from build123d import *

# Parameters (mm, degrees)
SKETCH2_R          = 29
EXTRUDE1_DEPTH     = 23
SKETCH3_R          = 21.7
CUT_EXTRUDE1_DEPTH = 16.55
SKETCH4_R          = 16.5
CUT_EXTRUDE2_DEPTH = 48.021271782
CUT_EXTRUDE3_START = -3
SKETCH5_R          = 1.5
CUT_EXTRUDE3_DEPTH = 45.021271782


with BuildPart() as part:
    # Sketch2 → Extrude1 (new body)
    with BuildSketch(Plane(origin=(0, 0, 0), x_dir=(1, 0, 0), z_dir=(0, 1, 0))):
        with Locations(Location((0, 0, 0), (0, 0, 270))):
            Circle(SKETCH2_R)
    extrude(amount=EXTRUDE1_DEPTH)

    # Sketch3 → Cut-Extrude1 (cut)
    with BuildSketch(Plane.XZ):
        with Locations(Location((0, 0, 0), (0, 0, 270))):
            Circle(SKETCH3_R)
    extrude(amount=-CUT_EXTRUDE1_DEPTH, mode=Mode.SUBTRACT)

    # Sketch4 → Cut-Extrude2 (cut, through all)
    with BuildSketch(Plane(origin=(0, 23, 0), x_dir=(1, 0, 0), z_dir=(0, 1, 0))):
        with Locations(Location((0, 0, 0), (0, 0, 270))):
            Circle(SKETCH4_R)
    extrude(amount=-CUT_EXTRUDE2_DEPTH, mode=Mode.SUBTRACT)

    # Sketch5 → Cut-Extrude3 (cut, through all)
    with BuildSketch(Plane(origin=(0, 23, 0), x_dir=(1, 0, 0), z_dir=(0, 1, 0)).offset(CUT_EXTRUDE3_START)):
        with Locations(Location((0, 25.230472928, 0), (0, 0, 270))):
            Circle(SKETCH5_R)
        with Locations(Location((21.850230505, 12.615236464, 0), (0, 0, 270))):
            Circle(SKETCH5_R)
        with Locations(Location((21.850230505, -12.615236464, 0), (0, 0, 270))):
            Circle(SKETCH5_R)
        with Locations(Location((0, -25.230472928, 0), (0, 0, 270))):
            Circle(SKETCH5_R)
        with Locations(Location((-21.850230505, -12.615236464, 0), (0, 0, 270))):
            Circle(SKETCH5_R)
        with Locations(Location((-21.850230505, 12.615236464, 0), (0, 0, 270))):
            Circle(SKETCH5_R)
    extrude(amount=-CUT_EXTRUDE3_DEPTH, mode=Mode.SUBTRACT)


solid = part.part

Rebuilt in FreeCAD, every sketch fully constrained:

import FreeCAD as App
import Part
import Sketcher

V = App.Vector
Q = App.Units.Quantity

doc = App.newDocument("Part")
body = doc.addObject("PartDesign::Body", "Body")

sketch1 = body.newObject("Sketcher::SketchObject", "Sketch")
sketch1.AttachmentSupport = (doc.getObject("XZ_Plane"), [""])
sketch1.MapMode = "FlatFace"
sketch1.addGeometry(Part.Circle(V(0, 0, 0), V(0, 0, 1), 29), False)
sketch1.addConstraint(Sketcher.Constraint("Coincident", 0, 3, -1, 1))
sketch1.addConstraint(Sketcher.Constraint("Diameter", 0, Q("58 mm")))
pad1 = body.newObject("PartDesign::Pad", "Pad")
pad1.Profile = sketch1
pad1.Length = 23
pad1.Reversed = True

sketch2 = body.newObject("Sketcher::SketchObject", "Sketch001")
sketch2.AttachmentSupport = (doc.getObject("XZ_Plane"), [""])
sketch2.MapMode = "FlatFace"
sketch2.addGeometry(Part.Circle(V(0, 0, 0), V(0, 0, 1), 22), False)
sketch2.addConstraint(Sketcher.Constraint("Coincident", 0, 3, -1, 1))
sketch2.addConstraint(Sketcher.Constraint("Diameter", 0, Q("43.4 mm")))
pocket1 = body.newObject("PartDesign::Pocket", "Pocket")
pocket1.Profile = sketch2
pocket1.Length = 16.55

sketch3 = body.newObject("Sketcher::SketchObject", "Sketch002")
sketch3.AttachmentSupport = (doc.getObject("XZ_Plane"), [""])
sketch3.MapMode = "FlatFace"
sketch3.AttachmentOffset = App.Placement(V(0, 0, -23), App.Rotation())
sketch3.addGeometry(Part.Circle(V(0, 0, 0), V(0, 0, 1), 16), False)
sketch3.addConstraint(Sketcher.Constraint("Coincident", 0, 3, -1, 1))
sketch3.addConstraint(Sketcher.Constraint("Diameter", 0, Q("33 mm")))
pocket2 = body.newObject("PartDesign::Pocket", "Pocket001")
pocket2.Profile = sketch3
pocket2.Type = "ThroughAll"
pocket2.Reversed = True

sketch4 = body.newObject("Sketcher::SketchObject", "Sketch003")
sketch4.AttachmentSupport = (doc.getObject("XZ_Plane"), [""])
sketch4.MapMode = "FlatFace"
sketch4.AttachmentOffset = App.Placement(V(0, 0, -20), App.Rotation())
sketch4.addGeometry(Part.Circle(V(0, -25.2, 0), V(0, 0, 1), 1.5), False)
sketch4.addGeometry(Part.Circle(V(21.9, -12.6, 0), V(0, 0, 1), 1.5), False)
sketch4.addGeometry(Part.Circle(V(21.9, 12.6, 0), V(0, 0, 1), 1.5), False)
sketch4.addGeometry(Part.Circle(V(0, 25.2, 0), V(0, 0, 1), 1.5), False)
sketch4.addGeometry(Part.Circle(V(-21.9, 12.6, 0), V(0, 0, 1), 1.5), False)
sketch4.addGeometry(Part.Circle(V(-21.9, -12.6, 0), V(0, 0, 1), 1.5), False)
sketch4.addConstraint(Sketcher.Constraint("Equal", 0, 1))
sketch4.addConstraint(Sketcher.Constraint("Equal", 1, 2))
sketch4.addConstraint(Sketcher.Constraint("Equal", 2, 3))
sketch4.addConstraint(Sketcher.Constraint("Equal", 3, 4))
sketch4.addConstraint(Sketcher.Constraint("Equal", 4, 5))
sketch4.addConstraint(Sketcher.Constraint("Symmetric", 0, 3, 3, 3, -1, 1))
sketch4.addConstraint(Sketcher.Constraint("Symmetric", 1, 3, 4, 3, -1, 1))
sketch4.addConstraint(Sketcher.Constraint("Symmetric", 2, 3, 5, 3, -1, 1))
sketch4.addConstraint(Sketcher.Constraint("Symmetric", 2, 3, 4, 3, -2))
sketch4.addConstraint(Sketcher.Constraint("PointOnObject", 0, 3, -2))
sketch4.addConstraint(Sketcher.Constraint("Diameter", 0, Q("3 mm")))
sketch4.addConstraint(Sketcher.Constraint("DistanceX", -1, 1, 1, 3, Q("21.850231 mm")))
sketch4.addConstraint(Sketcher.Constraint("DistanceY", 0, 3, 2, 3, Q("37.845709 mm")))
sketch4.addConstraint(Sketcher.Constraint("DistanceY", 0, 3, -1, 1, Q("25.230473 mm")))
pocket3 = body.newObject("PartDesign::Pocket", "Pocket002")
pocket3.Profile = sketch4
pocket3.Type = "ThroughAll"
pocket3.Reversed = True

doc.recompute()
